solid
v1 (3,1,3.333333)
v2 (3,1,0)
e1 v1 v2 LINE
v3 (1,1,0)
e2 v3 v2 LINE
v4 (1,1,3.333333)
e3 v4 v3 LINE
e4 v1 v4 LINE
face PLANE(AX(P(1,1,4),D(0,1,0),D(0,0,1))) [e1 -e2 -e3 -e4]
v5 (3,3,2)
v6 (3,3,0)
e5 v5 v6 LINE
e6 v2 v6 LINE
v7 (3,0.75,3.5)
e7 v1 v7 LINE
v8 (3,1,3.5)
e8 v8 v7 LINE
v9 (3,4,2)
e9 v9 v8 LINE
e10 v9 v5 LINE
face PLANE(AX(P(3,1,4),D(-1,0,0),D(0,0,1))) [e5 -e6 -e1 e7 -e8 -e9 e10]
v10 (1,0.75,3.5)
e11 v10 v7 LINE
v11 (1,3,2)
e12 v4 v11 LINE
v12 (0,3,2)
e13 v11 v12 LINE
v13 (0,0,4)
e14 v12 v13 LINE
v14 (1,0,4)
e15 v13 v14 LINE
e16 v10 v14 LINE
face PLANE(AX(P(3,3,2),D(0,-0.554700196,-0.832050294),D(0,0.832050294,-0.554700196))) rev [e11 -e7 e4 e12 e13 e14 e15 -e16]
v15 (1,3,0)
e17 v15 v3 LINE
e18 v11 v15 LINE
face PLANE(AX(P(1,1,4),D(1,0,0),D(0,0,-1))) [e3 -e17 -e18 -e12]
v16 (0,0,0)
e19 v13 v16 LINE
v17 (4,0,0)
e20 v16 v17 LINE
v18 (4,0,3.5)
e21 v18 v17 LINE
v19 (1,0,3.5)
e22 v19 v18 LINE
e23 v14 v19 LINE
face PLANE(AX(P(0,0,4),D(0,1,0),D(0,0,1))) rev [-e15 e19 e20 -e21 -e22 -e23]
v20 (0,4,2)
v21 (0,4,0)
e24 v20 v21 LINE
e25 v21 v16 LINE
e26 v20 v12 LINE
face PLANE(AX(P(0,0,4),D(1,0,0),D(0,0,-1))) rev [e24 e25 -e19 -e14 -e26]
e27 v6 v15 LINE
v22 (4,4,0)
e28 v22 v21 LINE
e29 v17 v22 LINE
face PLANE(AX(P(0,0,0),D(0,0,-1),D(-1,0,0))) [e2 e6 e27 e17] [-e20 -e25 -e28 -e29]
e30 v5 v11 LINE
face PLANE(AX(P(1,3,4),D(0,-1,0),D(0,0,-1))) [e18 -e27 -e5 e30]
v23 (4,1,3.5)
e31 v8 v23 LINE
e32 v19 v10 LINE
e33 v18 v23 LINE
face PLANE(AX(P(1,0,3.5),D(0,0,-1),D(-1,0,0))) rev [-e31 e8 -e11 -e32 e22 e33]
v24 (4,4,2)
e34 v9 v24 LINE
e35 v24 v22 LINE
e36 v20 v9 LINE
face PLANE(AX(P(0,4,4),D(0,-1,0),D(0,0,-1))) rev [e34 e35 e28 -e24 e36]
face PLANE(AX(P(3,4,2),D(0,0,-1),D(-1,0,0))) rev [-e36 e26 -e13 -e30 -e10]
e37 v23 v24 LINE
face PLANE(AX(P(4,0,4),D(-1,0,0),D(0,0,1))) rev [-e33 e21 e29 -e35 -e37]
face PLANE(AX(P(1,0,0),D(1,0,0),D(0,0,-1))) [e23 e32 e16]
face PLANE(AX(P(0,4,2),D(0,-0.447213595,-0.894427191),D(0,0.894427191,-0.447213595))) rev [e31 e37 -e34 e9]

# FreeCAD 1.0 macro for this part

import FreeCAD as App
import Part
import Sketcher
from FreeCAD import Vector
Q = App.Units.Quantity

doc = App.newDocument("Part")
body = doc.addObject("PartDesign::Body", "Body")

sketch1 = body.newObject("Sketcher::SketchObject", "Sketch")
sketch1.AttachmentSupport = (doc.getObject("XY_Plane"), [""])
sketch1.MapMode = "FlatFace"
sketch1.addGeometry(Part.LineSegment(Vector(0, 4, 0), Vector(0, 0, 0)), False)
sketch1.addGeometry(Part.LineSegment(Vector(0, 0, 0), Vector(4, 0, 0)), False)
sketch1.addGeometry(Part.LineSegment(Vector(4, 0, 0), Vector(4, 4, 0)), False)
sketch1.addGeometry(Part.LineSegment(Vector(4, 4, 0), Vector(0, 4, 0)), False)
sketch1.addGeometry(Part.LineSegment(Vector(3, 1, 0), Vector(1, 1, 0)), False)
sketch1.addGeometry(Part.LineSegment(Vector(1, 1, 0), Vector(1, 3, 0)), False)
sketch1.addGeometry(Part.LineSegment(Vector(1, 3, 0), Vector(3, 3, 0)), False)
sketch1.addGeometry(Part.LineSegment(Vector(3, 3, 0), Vector(3, 1, 0)), False)
sketch1.addConstraint(Sketcher.Constraint("Coincident", 0, 2, 1, 1))
sketch1.addConstraint(Sketcher.Constraint("Coincident", 1, 2, 2, 1))
sketch1.addConstraint(Sketcher.Constraint("Coincident", 2, 2, 3, 1))
sketch1.addConstraint(Sketcher.Constraint("Coincident", 3, 2, 0, 1))
sketch1.addConstraint(Sketcher.Constraint("Coincident", 4, 2, 5, 1))
sketch1.addConstraint(Sketcher.Constraint("Coincident", 5, 2, 6, 1))
sketch1.addConstraint(Sketcher.Constraint("Coincident", 6, 2, 7, 1))
sketch1.addConstraint(Sketcher.Constraint("Coincident", 7, 2, 4, 1))
sketch1.addConstraint(Sketcher.Constraint("Vertical", 0))
sketch1.addConstraint(Sketcher.Constraint("Horizontal", 1))
sketch1.addConstraint(Sketcher.Constraint("Vertical", 2))
sketch1.addConstraint(Sketcher.Constraint("Horizontal", 3))
sketch1.addConstraint(Sketcher.Constraint("Horizontal", 4))
sketch1.addConstraint(Sketcher.Constraint("Vertical", 5))
sketch1.addConstraint(Sketcher.Constraint("Horizontal", 6))
sketch1.addConstraint(Sketcher.Constraint("Vertical", 7))
sketch1.addConstraint(Sketcher.Constraint("Coincident", 0, 2, -1, 1))
sketch1.addConstraint(Sketcher.Constraint("Equal", 3, 0))
sketch1.addConstraint(Sketcher.Constraint("Equal", 6, 5))
sketch1.addConstraint(Sketcher.Constraint("DistanceX", 1, 1, 1, 2, Q("4 mm")))
sketch1.addConstraint(Sketcher.Constraint("DistanceX", 4, 2, 4, 1, Q("2 mm")))
sketch1.addConstraint(Sketcher.Constraint("DistanceX", -1, 1, 4, 2, Q("1 mm")))
sketch1.addConstraint(Sketcher.Constraint("DistanceY", -1, 1, 4, 2, Q("1 mm")))
pad1 = body.newObject("PartDesign::Pad", "Pad")
pad1.Profile = sketch1
pad1.Length = 4

sketch2 = body.newObject("Sketcher::SketchObject", "Sketch001")
sketch2.AttachmentSupport = (doc.getObject("YZ_Plane"), [""])
sketch2.MapMode = "FlatFace"
sketch2.AttachmentOffset = App.Placement(Vector(0, 0, 4), App.Rotation())
sketch2.addGeometry(Part.LineSegment(Vector(0, 4, 0), Vector(4, 2, 0)), False)
sketch2.addGeometry(Part.LineSegment(Vector(4, 2, 0), Vector(4, 4, 0)), False)
sketch2.addGeometry(Part.LineSegment(Vector(4, 4, 0), Vector(0, 4, 0)), False)
sketch2.addConstraint(Sketcher.Constraint("Coincident", 0, 2, 1, 1))
sketch2.addConstraint(Sketcher.Constraint("Coincident", 1, 2, 2, 1))
sketch2.addConstraint(Sketcher.Constraint("Coincident", 2, 2, 0, 1))
sketch2.addConstraint(Sketcher.Constraint("Vertical", 1))
sketch2.addConstraint(Sketcher.Constraint("Horizontal", 2))
sketch2.addConstraint(Sketcher.Constraint("PointOnObject", 2, 2, -2))
sketch2.addConstraint(Sketcher.Constraint("DistanceX", 2, 2, 2, 1, Q("4 mm")))
sketch2.addConstraint(Sketcher.Constraint("DistanceY", 1, 1, 1, 2, Q("2 mm")))
sketch2.addConstraint(Sketcher.Constraint("DistanceY", -1, 1, 0, 2, Q("2 mm")))
pocket1 = body.newObject("PartDesign::Pocket", "Pocket")
pocket1.Profile = sketch2
pocket1.Length = 4

sketch3 = body.newObject("Sketcher::SketchObject", "Sketch002")
sketch3.AttachmentSupport = (doc.getObject("YZ_Plane"), [""])
sketch3.MapMode = "FlatFace"
sketch3.addGeometry(Part.LineSegment(Vector(4, 2, 0), Vector(3, 2, 0)), False)
sketch3.addGeometry(Part.LineSegment(Vector(3, 2, 0), Vector(3, 2.5, 0)), False)
sketch3.addGeometry(Part.LineSegment(Vector(3, 2.5, 0), Vector(4, 2, 0)), False)
sketch3.addConstraint(Sketcher.Constraint("Coincident", 0, 2, 1, 1))
sketch3.addConstraint(Sketcher.Constraint("Coincident", 1, 2, 2, 1))
sketch3.addConstraint(Sketcher.Constraint("Coincident", 2, 2, 0, 1))
sketch3.addConstraint(Sketcher.Constraint("Horizontal", 0))
sketch3.addConstraint(Sketcher.Constraint("Vertical", 1))
sketch3.addConstraint(Sketcher.Constraint("DistanceX", 0, 2, 0, 1, Q("1 mm")))
sketch3.addConstraint(Sketcher.Constraint("DistanceY", 1, 1, 1, 2, Q("0.5 mm")))
sketch3.addConstraint(Sketcher.Constraint("DistanceX", -1, 1, 0, 2, Q("3 mm")))
sketch3.addConstraint(Sketcher.Constraint("DistanceY", -1, 1, 0, 2, Q("2 mm")))
pocket2 = body.newObject("PartDesign::Pocket", "Pocket001")
pocket2.Profile = sketch3
pocket2.Length = 3
pocket2.Reversed = True

sketch4 = body.newObject("Sketcher::SketchObject", "Sketch003")
sketch4.AttachmentSupport = (doc.getObject("YZ_Plane"), [""])
sketch4.MapMode = "FlatFace"
sketch4.addGeometry(Part.LineSegment(Vector(3, 2, 0), Vector(0, 4, 0)), False)
sketch4.addGeometry(Part.LineSegment(Vector(0, 4, 0), Vector(3.222768, 4, 0)), False)
sketch4.addGeometry(Part.LineSegment(Vector(3.222768, 4, 0), Vector(3, 2, 0)), False)
sketch4.addConstraint(Sketcher.Constraint("Coincident", 0, 2, 1, 1))
sketch4.addConstraint(Sketcher.Constraint("Coincident", 1, 2, 2, 1))
sketch4.addConstraint(Sketcher.Constraint("Coincident", 2, 2, 0, 1))
sketch4.addConstraint(Sketcher.Constraint("Horizontal", 1))
sketch4.addConstraint(Sketcher.Constraint("PointOnObject", 0, 2, -2))
sketch4.addConstraint(Sketcher.Constraint("DistanceY", -1, 1, 0, 2, Q("4 mm")))
sketch4.addConstraint(Sketcher.Constraint("DistanceX", -1, 1, 2, 2, Q("3 mm")))
sketch4.addConstraint(Sketcher.Constraint("DistanceY", -1, 1, 2, 2, Q("2 mm")))
sketch4.addConstraint(Sketcher.Constraint("DistanceX", 1, 1, 1, 2, Q("3.222768 mm")))
pocket3 = body.newObject("PartDesign::Pocket", "Pocket002")
pocket3.Profile = sketch4
pocket3.Length = 3
pocket3.Reversed = True

sketch5 = body.newObject("Sketcher::SketchObject", "Sketch004")
sketch5.AttachmentSupport = (doc.getObject("YZ_Plane"), [""])
sketch5.MapMode = "FlatFace"
sketch5.AttachmentOffset = App.Placement(Vector(0, 0, 4), App.Rotation())
sketch5.addGeometry(Part.LineSegment(Vector(0, 3.5, 0), Vector(1, 3.5, 0)), False)
sketch5.addGeometry(Part.LineSegment(Vector(1, 3.5, 0), Vector(0, 4, 0)), False)
sketch5.addGeometry(Part.LineSegment(Vector(0, 4, 0), Vector(0, 3.5, 0)), False)
sketch5.addConstraint(Sketcher.Constraint("Coincident", 0, 2, 1, 1))
sketch5.addConstraint(Sketcher.Constraint("Coincident", 1, 2, 2, 1))
sketch5.addConstraint(Sketcher.Constraint("Coincident", 2, 2, 0, 1))
sketch5.addConstraint(Sketcher.Constraint("Horizontal", 0))
sketch5.addConstraint(Sketcher.Constraint("Vertical", 2))
sketch5.addConstraint(Sketcher.Constraint("PointOnObject", 1, 2, -2))
sketch5.addConstraint(Sketcher.Constraint("DistanceX", 0, 1, 0, 2, Q("1 mm")))
sketch5.addConstraint(Sketcher.Constraint("DistanceY", 2, 2, 2, 1, Q("0.5 mm")))
sketch5.addConstraint(Sketcher.Constraint("DistanceY", -1, 1, 1, 2, Q("4 mm")))
pocket4 = body.newObject("PartDesign::Pocket", "Pocket003")
pocket4.Profile = sketch5
pocket4.Length = 3

doc.recompute()
